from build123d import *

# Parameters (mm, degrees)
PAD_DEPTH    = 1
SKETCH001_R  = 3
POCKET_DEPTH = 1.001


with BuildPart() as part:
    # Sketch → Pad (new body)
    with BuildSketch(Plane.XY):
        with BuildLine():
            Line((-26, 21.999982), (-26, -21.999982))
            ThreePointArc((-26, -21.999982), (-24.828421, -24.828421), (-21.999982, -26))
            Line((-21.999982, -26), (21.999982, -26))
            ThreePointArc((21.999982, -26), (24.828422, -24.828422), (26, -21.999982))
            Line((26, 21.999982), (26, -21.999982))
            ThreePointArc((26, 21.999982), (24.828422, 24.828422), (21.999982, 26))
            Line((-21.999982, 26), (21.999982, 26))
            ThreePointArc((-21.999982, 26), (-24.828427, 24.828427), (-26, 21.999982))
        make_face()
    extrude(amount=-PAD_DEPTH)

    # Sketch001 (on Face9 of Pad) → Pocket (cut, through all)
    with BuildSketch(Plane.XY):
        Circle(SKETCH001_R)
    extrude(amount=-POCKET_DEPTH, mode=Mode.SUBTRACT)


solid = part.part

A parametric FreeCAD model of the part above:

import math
import FreeCAD as App
import Part
import Sketcher
Q = App.Units.Quantity

doc = App.newDocument("Part")
body = doc.addObject("PartDesign::Body", "Body")

sketch1 = doc.addObject("Sketcher::SketchObject", "Sketch")
body.addObject(sketch1)
sketch1.AttachmentSupport = (doc.XY_Plane, [""])
sketch1.MapMode = "FlatFace"
sketch1.addGeometry(Part.LineSegment(App.Vector(-26, 22, 0), App.Vector(-26, -22, 0)), False)
sketch1.addGeometry(Part.ArcOfCircle(Part.Circle(App.Vector(-22, -22, 0), App.Vector(0, 0, 1), 4), math.radians(-180), math.radians(-90)), False)
sketch1.addGeometry(Part.LineSegment(App.Vector(-22, -26, 0), App.Vector(22, -26, 0)), False)
sketch1.addGeometry(Part.ArcOfCircle(Part.Circle(App.Vector(22, -22, 0), App.Vector(0, 0, 1), 4), math.radians(-90), math.radians(0)), False)
sketch1.addGeometry(Part.LineSegment(App.Vector(26, -22, 0), App.Vector(26, 22, 0)), False)
sketch1.addGeometry(Part.ArcOfCircle(Part.Circle(App.Vector(22, 22, 0), App.Vector(0, 0, 1), 4), math.radians(0), math.radians(90)), False)
sketch1.addGeometry(Part.LineSegment(App.Vector(22, 26, 0), App.Vector(-22, 26, 0)), False)
sketch1.addGeometry(Part.ArcOfCircle(Part.Circle(App.Vector(-22, 22, 0), App.Vector(0, 0, 1), 4), math.radians(90), math.radians(180)), False)
sketch1.addConstraint(Sketcher.Constraint("Tangent", 0, 2, 1, 1))
sketch1.addConstraint(Sketcher.Constraint("Tangent", 1, 2, 2, 1))
sketch1.addConstraint(Sketcher.Constraint("Tangent", 2, 2, 3, 1))
sketch1.addConstraint(Sketcher.Constraint("Tangent", 3, 2, 4, 1))
sketch1.addConstraint(Sketcher.Constraint("Tangent", 4, 2, 5, 1))
sketch1.addConstraint(Sketcher.Constraint("Tangent", 5, 2, 6, 1))
sketch1.addConstraint(Sketcher.Constraint("Coincident", 6, 2, 7, 1))
sketch1.addConstraint(Sketcher.Constraint("Coincident", 7, 2, 0, 1))
sketch1.addConstraint(Sketcher.Constraint("Vertical", 0))
sketch1.addConstraint(Sketcher.Constraint("Horizontal", 2))
sketch1.addConstraint(Sketcher.Constraint("Vertical", 4))
sketch1.addConstraint(Sketcher.Constraint("Horizontal", 6))
sketch1.addConstraint(Sketcher.Constraint("Equal", 3, 5))
sketch1.addConstraint(Sketcher.Constraint("Symmetric", 1, 3, 5, 3, -1, 1))
sketch1.addConstraint(Sketcher.Constraint("Symmetric", 2, 2, 6, 2, -1, 1))
sketch1.addConstraint(Sketcher.Constraint("Horizontal", 4, 2, 7, 2))
sketch1.addConstraint(Sketcher.Constraint("Equal", 6, 0))
sketch1.addConstraint(Sketcher.Constraint("Radius", 7, Q("4 mm")))
sketch1.addConstraint(Sketcher.Constraint("DistanceX", 7, 3, -1, 1, Q("22 mm")))
sketch1.addConstraint(Sketcher.Constraint("Radius", 1, Q("4.000021 mm")))
pad1 = doc.addObject("PartDesign::Pad", "Pad")
body.addObject(pad1)
pad1.Profile = sketch1
pad1.Length = 1
pad1.Reversed = True

sketch2 = doc.addObject("Sketcher::SketchObject", "Sketch001")
body.addObject(sketch2)
sketch2.AttachmentSupport = (doc.XY_Plane, [""])
sketch2.MapMode = "FlatFace"
sketch2.addGeometry(Part.Circle(App.Vector(0, 0, 0), App.Vector(0, 0, 1), 3), False)
sketch2.addConstraint(Sketcher.Constraint("Coincident", 0, 3, -1, 1))
sketch2.addConstraint(Sketcher.Constraint("Diameter", 0, Q("6 mm")))
pocket1 = doc.addObject("PartDesign::Pocket", "Pocket")
body.addObject(pocket1)
pocket1.Profile = sketch2
pocket1.Type = "ThroughAll"

doc.recompute()
